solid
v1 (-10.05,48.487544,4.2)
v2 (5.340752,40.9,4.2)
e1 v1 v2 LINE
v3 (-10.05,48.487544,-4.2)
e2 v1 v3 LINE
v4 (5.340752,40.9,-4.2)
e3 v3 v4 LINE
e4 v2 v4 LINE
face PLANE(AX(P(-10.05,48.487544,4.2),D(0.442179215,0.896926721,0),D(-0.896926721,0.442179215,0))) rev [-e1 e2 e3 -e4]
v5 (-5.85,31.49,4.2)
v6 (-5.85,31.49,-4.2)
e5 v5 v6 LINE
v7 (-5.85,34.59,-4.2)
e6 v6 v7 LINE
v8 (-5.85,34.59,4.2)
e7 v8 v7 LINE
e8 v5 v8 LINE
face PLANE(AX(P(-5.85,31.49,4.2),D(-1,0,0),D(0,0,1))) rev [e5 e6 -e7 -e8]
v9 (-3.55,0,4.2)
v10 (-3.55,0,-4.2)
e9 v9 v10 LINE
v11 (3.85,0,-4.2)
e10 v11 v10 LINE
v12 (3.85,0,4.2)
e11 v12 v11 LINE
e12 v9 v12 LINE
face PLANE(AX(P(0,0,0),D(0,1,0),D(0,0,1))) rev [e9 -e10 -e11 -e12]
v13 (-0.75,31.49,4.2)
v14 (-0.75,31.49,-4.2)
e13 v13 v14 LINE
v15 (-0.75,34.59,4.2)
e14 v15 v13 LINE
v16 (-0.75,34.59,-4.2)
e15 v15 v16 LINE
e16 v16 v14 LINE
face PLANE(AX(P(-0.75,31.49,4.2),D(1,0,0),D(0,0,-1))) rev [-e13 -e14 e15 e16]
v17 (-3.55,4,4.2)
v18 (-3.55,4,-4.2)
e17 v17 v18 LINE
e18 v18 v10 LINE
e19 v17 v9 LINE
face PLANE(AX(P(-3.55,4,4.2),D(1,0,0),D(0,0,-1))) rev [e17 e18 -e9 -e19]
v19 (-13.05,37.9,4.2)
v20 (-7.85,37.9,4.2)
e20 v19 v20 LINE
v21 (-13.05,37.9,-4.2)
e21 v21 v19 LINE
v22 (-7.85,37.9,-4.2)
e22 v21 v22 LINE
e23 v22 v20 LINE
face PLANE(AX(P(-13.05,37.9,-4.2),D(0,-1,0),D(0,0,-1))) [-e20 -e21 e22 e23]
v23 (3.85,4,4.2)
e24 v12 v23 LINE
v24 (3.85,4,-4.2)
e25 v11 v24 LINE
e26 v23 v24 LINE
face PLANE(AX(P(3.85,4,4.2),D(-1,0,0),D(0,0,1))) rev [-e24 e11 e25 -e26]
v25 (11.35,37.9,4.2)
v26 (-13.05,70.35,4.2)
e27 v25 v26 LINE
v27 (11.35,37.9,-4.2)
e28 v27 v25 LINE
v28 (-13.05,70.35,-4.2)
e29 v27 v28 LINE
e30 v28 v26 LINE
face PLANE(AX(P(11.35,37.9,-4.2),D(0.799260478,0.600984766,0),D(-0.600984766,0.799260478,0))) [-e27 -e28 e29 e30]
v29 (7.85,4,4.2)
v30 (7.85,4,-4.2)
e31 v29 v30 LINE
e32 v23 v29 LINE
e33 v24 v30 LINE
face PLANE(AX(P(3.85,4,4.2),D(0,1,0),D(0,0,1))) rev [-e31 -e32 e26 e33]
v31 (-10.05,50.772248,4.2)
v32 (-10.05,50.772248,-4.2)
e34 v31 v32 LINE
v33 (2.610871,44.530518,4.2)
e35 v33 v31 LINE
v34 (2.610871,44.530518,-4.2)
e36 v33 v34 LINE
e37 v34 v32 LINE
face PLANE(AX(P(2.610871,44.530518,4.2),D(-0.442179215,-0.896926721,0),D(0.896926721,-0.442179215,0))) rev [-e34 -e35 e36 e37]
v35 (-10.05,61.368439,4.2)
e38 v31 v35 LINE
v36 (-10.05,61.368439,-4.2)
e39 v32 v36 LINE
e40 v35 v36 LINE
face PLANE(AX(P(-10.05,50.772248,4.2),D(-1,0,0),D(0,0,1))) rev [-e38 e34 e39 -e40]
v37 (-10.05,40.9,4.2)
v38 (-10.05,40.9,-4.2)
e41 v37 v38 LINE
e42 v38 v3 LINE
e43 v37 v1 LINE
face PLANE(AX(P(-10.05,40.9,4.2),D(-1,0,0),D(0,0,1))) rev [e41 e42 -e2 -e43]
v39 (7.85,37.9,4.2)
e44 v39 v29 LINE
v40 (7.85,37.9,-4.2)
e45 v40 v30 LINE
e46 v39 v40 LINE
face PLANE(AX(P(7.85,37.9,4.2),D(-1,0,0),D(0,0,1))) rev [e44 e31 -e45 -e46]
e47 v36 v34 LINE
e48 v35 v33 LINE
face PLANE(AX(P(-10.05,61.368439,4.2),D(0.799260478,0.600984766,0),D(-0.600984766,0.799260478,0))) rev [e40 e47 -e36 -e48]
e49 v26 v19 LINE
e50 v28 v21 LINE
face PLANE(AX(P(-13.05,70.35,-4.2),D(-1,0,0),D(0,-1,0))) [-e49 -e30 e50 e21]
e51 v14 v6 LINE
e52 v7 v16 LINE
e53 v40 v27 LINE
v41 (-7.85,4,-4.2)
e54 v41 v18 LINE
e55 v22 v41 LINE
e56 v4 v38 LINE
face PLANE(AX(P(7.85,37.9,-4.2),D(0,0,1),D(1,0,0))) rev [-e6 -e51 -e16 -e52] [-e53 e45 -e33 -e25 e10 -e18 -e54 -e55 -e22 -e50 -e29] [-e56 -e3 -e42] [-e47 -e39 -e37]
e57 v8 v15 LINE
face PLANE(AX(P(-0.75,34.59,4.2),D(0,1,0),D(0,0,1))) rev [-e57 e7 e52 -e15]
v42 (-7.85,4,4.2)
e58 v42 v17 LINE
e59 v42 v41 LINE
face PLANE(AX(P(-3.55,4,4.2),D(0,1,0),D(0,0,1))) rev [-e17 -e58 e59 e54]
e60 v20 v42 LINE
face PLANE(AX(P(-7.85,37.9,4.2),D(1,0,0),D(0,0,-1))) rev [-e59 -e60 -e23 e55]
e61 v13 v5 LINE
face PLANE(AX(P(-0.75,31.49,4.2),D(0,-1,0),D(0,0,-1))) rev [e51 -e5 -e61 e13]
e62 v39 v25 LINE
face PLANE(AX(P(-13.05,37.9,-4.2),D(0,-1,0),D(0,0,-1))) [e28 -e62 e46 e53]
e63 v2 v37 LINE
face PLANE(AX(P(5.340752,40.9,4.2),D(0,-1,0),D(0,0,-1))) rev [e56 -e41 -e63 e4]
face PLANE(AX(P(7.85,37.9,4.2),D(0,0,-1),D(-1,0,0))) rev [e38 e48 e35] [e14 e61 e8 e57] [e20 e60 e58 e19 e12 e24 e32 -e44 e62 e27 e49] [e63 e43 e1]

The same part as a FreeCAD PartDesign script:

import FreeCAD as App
import Part
import Sketcher
from FreeCAD import Vector

doc = App.newDocument("Part")
body = doc.addObject("PartDesign::Body", "Body")

sketch1 = doc.addObject("Sketcher::SketchObject", "Sketch")
body.addObject(sketch1)
sketch1.AttachmentSupport = (doc.XZ_Plane, [""])
sketch1.MapMode = "FlatFace"
sketch1.addGeometry(Part.LineSegment(Vector(-7.85, -4.2, 0), Vector(-7.85, 4.2, 0)), False)
sketch1.addGeometry(Part.LineSegment(Vector(-7.85, 4.2, 0), Vector(7.85, 4.2, 0)), False)
sketch1.addGeometry(Part.LineSegment(Vector(7.85, 4.2, 0), Vector(7.85, -4.2, 0)), False)
sketch1.addGeometry(Part.LineSegment(Vector(7.85, -4.2, 0), Vector(-7.85, -4.2, 0)), False)
sketch1.addConstraint(Sketcher.Constraint("Coincident", 0, 2, 1, 1))
sketch1.addConstraint(Sketcher.Constraint("Coincident", 1, 2, 2, 1))
sketch1.addConstraint(Sketcher.Constraint("Coincident", 2, 2, 3, 1))
sketch1.addConstraint(Sketcher.Constraint("Coincident", 3, 2, 0, 1))
sketch1.addConstraint(Sketcher.Constraint("Vertical", 0))
sketch1.addConstraint(Sketcher.Constraint("Horizontal", 1))
sketch1.addConstraint(Sketcher.Constraint("Vertical", 2))
sketch1.addConstraint(Sketcher.Constraint("Horizontal", 3))
sketch1.addConstraint(Sketcher.Constraint("Symmetric", 0, 2, 2, 2, -1, 1))
sketch1.addConstraint(Sketcher.Constraint("DistanceX", 1, 1, 1, 2, 15.7))
sketch1.addConstraint(Sketcher.Constraint("DistanceY", 0, 1, 0, 2, 8.4))
pad1 = doc.addObject("PartDesign::Pad", "Pad")
body.addObject(pad1)
pad1.Profile = sketch1
pad1.Length = 37.9
pad1.Reversed = True

sketch2 = doc.addObject("Sketcher::SketchObject", "Sketch001")
body.addObject(sketch2)
sketch2.AttachmentSupport = (doc.XY_Plane, [""])
sketch2.MapMode = "FlatFace"
sketch2.AttachmentOffset = App.Placement(Vector(0, 0, 4.2), App.Rotation())
sketch2.addGeometry(Part.LineSegment(Vector(-13.05, 37.9, 0), Vector(11.35, 37.9, 0)), False)
sketch2.addGeometry(Part.LineSegment(Vector(11.35, 37.9, 0), Vector(-13.05, 70.35, 0)), False)
sketch2.addGeometry(Part.LineSegment(Vector(-13.05, 70.35, 0), Vector(-13.05, 37.9, 0)), False)
sketch2.addConstraint(Sketcher.Constraint("Coincident", 0, 2, 1, 1))
sketch2.addConstraint(Sketcher.Constraint("Coincident", 1, 2, 2, 1))
sketch2.addConstraint(Sketcher.Constraint("Coincident", 2, 2, 0, 1))
sketch2.addConstraint(Sketcher.Constraint("Horizontal", 0))
sketch2.addConstraint(Sketcher.Constraint("Vertical", 2))
sketch2.addConstraint(Sketcher.Constraint("DistanceX", 0, 1, 0, 2, 24.4))
sketch2.addConstraint(Sketcher.Constraint("DistanceY", 2, 2, 2, 1, 32.45))
sketch2.addConstraint(Sketcher.Constraint("DistanceY", -1, 1, 0, 2, 37.9))
sketch2.addConstraint(Sketcher.Constraint("DistanceX", -1, 1, 0, 2, 11.35))
pad2 = doc.addObject("PartDesign::Pad", "Pad001")
body.addObject(pad2)
pad2.Profile = sketch2
pad2.Length = 8.4
pad2.Reversed = True

sketch3 = doc.addObject("Sketcher::SketchObject", "Sketch002")
body.addObject(sketch3)
sketch3.AttachmentSupport = (doc.XY_Plane, [""])
sketch3.MapMode = "FlatFace"
sketch3.AttachmentOffset = App.Placement(Vector(0, 0, -4.2), App.Rotation())
sketch3.addGeometry(Part.LineSegment(Vector(-10.05, 61.368439, 0), Vector(2.610871, 44.530518, 0)), False)
sketch3.addGeometry(Part.LineSegment(Vector(2.610871, 44.530518, 0), Vector(-10.05, 50.772248, 0)), False)
sketch3.addGeometry(Part.LineSegment(Vector(-10.05, 50.772248, 0), Vector(-10.05, 61.368439, 0)), False)
sketch3.addGeometry(Part.LineSegment(Vector(5.340752, 40.9, 0), Vector(-10.05, 40.9, 0)), False)
sketch3.addGeometry(Part.LineSegment(Vector(-10.05, 40.9, 0), Vector(-10.05, 48.487544, 0)), False)
sketch3.addGeometry(Part.LineSegment(Vector(-10.05, 48.487544, 0), Vector(5.340752, 40.9, 0)), False)
sketch3.addConstraint(Sketcher.Constraint("Coincident", 0, 2, 1, 1))
sketch3.addConstraint(Sketcher.Constraint("Coincident", 1, 2, 2, 1))
sketch3.addConstraint(Sketcher.Constraint("Coincident", 2, 2, 0, 1))
sketch3.addConstraint(Sketcher.Constraint("Coincident", 3, 2, 4, 1))
sketch3.addConstraint(Sketcher.Constraint("Coincident", 4, 2, 5, 1))
sketch3.addConstraint(Sketcher.Constraint("Coincident", 5, 2, 3, 1))
sketch3.addConstraint(Sketcher.Constraint("Vertical", 2))
sketch3.addConstraint(Sketcher.Constraint("Horizontal", 3))
sketch3.addConstraint(Sketcher.Constraint("Vertical", 4))
sketch3.addConstraint(Sketcher.Constraint("Parallel", 1, 5))
sketch3.addConstraint(Sketcher.Constraint("Vertical", 2, 2, 3, 2))
sketch3.addConstraint(Sketcher.Constraint("DistanceY", -1, 1, 3, 2, 40.9))
sketch3.addConstraint(Sketcher.Constraint("DistanceX", 1, 2, -1, 1, 10.05))
sketch3.addConstraint(Sketcher.Constraint("DistanceY", 2, 1, 2, 2, 10.596191))
sketch3.addConstraint(Sketcher.Constraint("Distance", 5, 17.159431))
sketch3.addConstraint(Sketcher.Constraint("DistanceX", 3, 2, 3, 1, 15.390752))
sketch3.addConstraint(Sketcher.Constraint("DistanceX", -1, 1, 0, 2, 2.610871))
sketch3.addConstraint(Sketcher.Constraint("DistanceY", -1, 1, 0, 2, 44.530518))
pocket1 = doc.addObject("PartDesign::Pocket", "Pocket")
body.addObject(pocket1)
pocket1.Profile = sketch3
pocket1.Type = "ThroughAll"
pocket1.Reversed = True

sketch4 = doc.addObject("Sketcher::SketchObject", "Sketch003")
body.addObject(sketch4)
sketch4.AttachmentSupport = (doc.XY_Plane, [""])
sketch4.MapMode = "FlatFace"
sketch4.AttachmentOffset = App.Placement(Vector(0, 0, -4.2), App.Rotation())
sketch4.addGeometry(Part.LineSegment(Vector(-3.55, 4, 0), Vector(-3.55, 0, 0)), False)
sketch4.addGeometry(Part.LineSegment(Vector(-3.55, 0, 0), Vector(-7.85, 0, 0)), False)
sketch4.addGeometry(Part.LineSegment(Vector(-7.85, 0, 0), Vector(-7.85, 4, 0)), False)
sketch4.addGeometry(Part.LineSegment(Vector(-7.85, 4, 0), Vector(-3.55, 4, 0)), False)
sketch4.addGeometry(Part.LineSegment(Vector(7.85, 4, 0), Vector(7.85, 0, 0)), False)
sketch4.addGeometry(Part.LineSegment(Vector(7.85, 0, 0), Vector(3.85, 0, 0)), False)
sketch4.addGeometry(Part.LineSegment(Vector(3.85, 0, 0), Vector(3.85, 4, 0)), False)
sketch4.addGeometry(Part.LineSegment(Vector(3.85, 4, 0), Vector(7.85, 4, 0)), False)
sketch4.addConstraint(Sketcher.Constraint("Coincident", 0, 2, 1, 1))
sketch4.addConstraint(Sketcher.Constraint("Coincident", 1, 2, 2, 1))
sketch4.addConstraint(Sketcher.Constraint("Coincident", 2, 2, 3, 1))
sketch4.addConstraint(Sketcher.Constraint("Coincident", 3, 2, 0, 1))
sketch4.addConstraint(Sketcher.Constraint("Coincident", 4, 2, 5, 1))
sketch4.addConstraint(Sketcher.Constraint("Coincident", 5, 2, 6, 1))
sketch4.addConstraint(Sketcher.Constraint("Coincident", 6, 2, 7, 1))
sketch4.addConstraint(Sketcher.Constraint("Coincident", 7, 2, 4, 1))
sketch4.addConstraint(Sketcher.Constraint("Vertical", 0))
sketch4.addConstraint(Sketcher.Constraint("Horizontal", 1))
sketch4.addConstraint(Sketcher.Constraint("Vertical", 2))
sketch4.addConstraint(Sketcher.Constraint("Horizontal", 3))
sketch4.addConstraint(Sketcher.Constraint("Vertical", 4))
sketch4.addConstraint(Sketcher.Constraint("Horizontal", 5))
sketch4.addConstraint(Sketcher.Constraint("Vertical", 6))
sketch4.addConstraint(Sketcher.Constraint("Horizontal", 7))
sketch4.addConstraint(Sketcher.Constraint("Symmetric", 1, 2, 4, 2, -1, 1))
sketch4.addConstraint(Sketcher.Constraint("PointOnObject", 0, 2, -1))
sketch4.addConstraint(Sketcher.Constraint("Horizontal", 3, 2, 6, 2))
sketch4.addConstraint(Sketcher.Constraint("Equal", 7, 0))
sketch4.addConstraint(Sketcher.Constraint("DistanceX", 5, 2, 5, 1, 4.0))
sketch4.addConstraint(Sketcher.Constraint("DistanceX", 1, 2, 1, 1, 4.3))
sketch4.addConstraint(Sketcher.Constraint("DistanceX", 0, 2, 4, 2, 11.4))
pocket2 = doc.addObject("PartDesign::Pocket", "Pocket001")
body.addObject(pocket2)
pocket2.Profile = sketch4
pocket2.Type = "ThroughAll"
pocket2.Reversed = True

sketch5 = doc.addObject("Sketcher::SketchObject", "Sketch004")
body.addObject(sketch5)
sketch5.AttachmentSupport = (doc.XY_Plane, [""])
sketch5.MapMode = "FlatFace"
sketch5.AttachmentOffset = App.Placement(Vector(0, 0, -4.2), App.Rotation())
sketch5.addGeometry(Part.LineSegment(Vector(-0.75, 34.59, 0), Vector(-0.75, 31.49, 0)), False)
sketch5.addGeometry(Part.LineSegment(Vector(-0.75, 31.49, 0), Vector(-5.85, 31.49, 0)), False)
sketch5.addGeometry(Part.LineSegment(Vector(-5.85, 31.49, 0), Vector(-5.85, 34.59, 0)), False)
sketch5.addGeometry(Part.LineSegment(Vector(-5.85, 34.59, 0), Vector(-0.75, 34.59, 0)), False)
sketch5.addConstraint(Sketcher.Constraint("Coincident", 0, 2, 1, 1))
sketch5.addConstraint(Sketcher.Constraint("Coincident", 1, 2, 2, 1))
sketch5.addConstraint(Sketcher.Constraint("Coincident", 2, 2, 3, 1))
sketch5.addConstraint(Sketcher.Constraint("Coincident", 3, 2, 0, 1))
sketch5.addConstraint(Sketcher.Constraint("Vertical", 0))
sketch5.addConstraint(Sketcher.Constraint("Horizontal", 1))
sketch5.addConstraint(Sketcher.Constraint("Vertical", 2))
sketch5.addConstraint(Sketcher.Constraint("Horizontal", 3))
sketch5.addConstraint(Sketcher.Constraint("DistanceX", 1, 2, 1, 1, 5.1))
sketch5.addConstraint(Sketcher.Constraint("DistanceY", 0, 2, 0, 1, 3.1))
sketch5.addConstraint(Sketcher.Constraint("DistanceX", 0, 2, -1, 1, 0.75))
sketch5.addConstraint(Sketcher.Constraint("DistanceY", -1, 1, 0, 2, 31.49))
pocket3 = doc.addObject("PartDesign::Pocket", "Pocket002")
body.addObject(pocket3)
pocket3.Profile = sketch5
pocket3.Type = "ThroughAll"
pocket3.Reversed = True

doc.recompute()
